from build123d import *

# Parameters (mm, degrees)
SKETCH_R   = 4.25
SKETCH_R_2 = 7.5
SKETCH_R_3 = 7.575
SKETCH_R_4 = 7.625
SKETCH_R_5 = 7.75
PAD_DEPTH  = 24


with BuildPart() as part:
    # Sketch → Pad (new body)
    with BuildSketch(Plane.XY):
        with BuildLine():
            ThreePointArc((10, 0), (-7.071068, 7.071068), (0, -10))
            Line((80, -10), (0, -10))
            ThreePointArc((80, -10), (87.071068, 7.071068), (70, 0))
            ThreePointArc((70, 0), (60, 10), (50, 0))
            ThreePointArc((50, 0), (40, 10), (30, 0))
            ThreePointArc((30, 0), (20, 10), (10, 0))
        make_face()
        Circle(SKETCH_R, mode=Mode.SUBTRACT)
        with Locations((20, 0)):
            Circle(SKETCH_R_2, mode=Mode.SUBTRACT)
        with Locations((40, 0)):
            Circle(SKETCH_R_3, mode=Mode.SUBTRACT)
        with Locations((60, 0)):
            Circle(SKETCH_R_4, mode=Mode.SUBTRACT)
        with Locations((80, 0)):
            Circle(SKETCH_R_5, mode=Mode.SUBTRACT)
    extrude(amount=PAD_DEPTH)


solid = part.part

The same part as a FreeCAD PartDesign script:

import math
import FreeCAD as App
import Part
import Sketcher

doc = App.newDocument("Part")
body = doc.addObject("PartDesign::Body", "Body")

sketch1 = body.newObject("Sketcher::SketchObject", "Sketch")
sketch1.AttachmentSupport = (doc.getObject("XY_Plane"), [""])
sketch1.MapMode = "FlatFace"
sketch1.addGeometry([
    Part.ArcOfCircle(Part.Circle(App.Vector(0, 0, 0), App.Vector(0, 0, 1), 10), math.radians(-0.000001), math.radians(270.000001)),
    Part.LineSegment(App.Vector(0, -10, 0), App.Vector(80, -10, 0)),
    Part.ArcOfCircle(Part.Circle(App.Vector(80, 0, 0), App.Vector(0, 0, 1), 10), math.radians(-90.000001), math.radians(180.000001)),
    Part.ArcOfCircle(Part.Circle(App.Vector(60, 0, 0), App.Vector(0, 0, 1), 10), math.radians(0), math.radians(180)),
    Part.ArcOfCircle(Part.Circle(App.Vector(40, 0, 0), App.Vector(0, 0, 1), 10), math.radians(0), math.radians(180)),
    Part.ArcOfCircle(Part.Circle(App.Vector(20, 0, 0), App.Vector(0, 0, 1), 10), math.radians(0), math.radians(180)),
    Part.Circle(App.Vector(0, 0, 0), App.Vector(0, 0, 1), 4.25),
    Part.Circle(App.Vector(20, 0, 0), App.Vector(0, 0, 1), 7.5),
    Part.Circle(App.Vector(40, 0, 0), App.Vector(0, 0, 1), 7.575),
    Part.Circle(App.Vector(60, 0, 0), App.Vector(0, 0, 1), 7.625),
    Part.Circle(App.Vector(80, 0, 0), App.Vector(0, 0, 1), 7.75),
], False)
sketch1.addConstraint([
    Sketcher.Constraint("Tangent", 0, 2, 1, 1),
    Sketcher.Constraint("Tangent", 1, 2, 2, 1),
    Sketcher.Constraint("Tangent", 2, 2, 3, 1),
    Sketcher.Constraint("Tangent", 3, 2, 4, 1),
    Sketcher.Constraint("Tangent", 4, 2, 5, 1),
    Sketcher.Constraint("Tangent", 5, 2, 0, 1),
    Sketcher.Constraint("Horizontal", 1),
    Sketcher.Constraint("Coincident", 0, 3, -1, 1),
    Sketcher.Constraint("Coincident", 6, 3, -1, 1),
    Sketcher.Constraint("Coincident", 7, 3, 5, 3),
    Sketcher.Constraint("Coincident", 8, 3, 4, 3),
    Sketcher.Constraint("Coincident", 9, 3, 3, 3),
    Sketcher.Constraint("Coincident", 10, 3, 2, 3),
    Sketcher.Constraint("Equal", 0, 2),
    Sketcher.Constraint("Equal", 2, 3),
    Sketcher.Constraint("Equal", 3, 4),
    Sketcher.Constraint("Equal", 4, 5),
    Sketcher.Constraint("PointOnObject", 3, 3, -1),
    Sketcher.Constraint("PointOnObject", 4, 3, -1),
    Sketcher.Constraint("PointOnObject", 5, 3, -1),
    Sketcher.Constraint("Diameter", 7, 15.0),
    Sketcher.Constraint("Radius", 0, 10.0),
    Sketcher.Constraint("Diameter", 6, 8.5),
    Sketcher.Constraint("Diameter", 10, 15.5),
    Sketcher.Constraint("Diameter", 8, 15.15),
    Sketcher.Constraint("Diameter", 9, 15.25),
])
pad1 = body.newObject("PartDesign::Pad", "Pad")
pad1.Profile = sketch1
pad1.Length = 24

doc.recompute()
